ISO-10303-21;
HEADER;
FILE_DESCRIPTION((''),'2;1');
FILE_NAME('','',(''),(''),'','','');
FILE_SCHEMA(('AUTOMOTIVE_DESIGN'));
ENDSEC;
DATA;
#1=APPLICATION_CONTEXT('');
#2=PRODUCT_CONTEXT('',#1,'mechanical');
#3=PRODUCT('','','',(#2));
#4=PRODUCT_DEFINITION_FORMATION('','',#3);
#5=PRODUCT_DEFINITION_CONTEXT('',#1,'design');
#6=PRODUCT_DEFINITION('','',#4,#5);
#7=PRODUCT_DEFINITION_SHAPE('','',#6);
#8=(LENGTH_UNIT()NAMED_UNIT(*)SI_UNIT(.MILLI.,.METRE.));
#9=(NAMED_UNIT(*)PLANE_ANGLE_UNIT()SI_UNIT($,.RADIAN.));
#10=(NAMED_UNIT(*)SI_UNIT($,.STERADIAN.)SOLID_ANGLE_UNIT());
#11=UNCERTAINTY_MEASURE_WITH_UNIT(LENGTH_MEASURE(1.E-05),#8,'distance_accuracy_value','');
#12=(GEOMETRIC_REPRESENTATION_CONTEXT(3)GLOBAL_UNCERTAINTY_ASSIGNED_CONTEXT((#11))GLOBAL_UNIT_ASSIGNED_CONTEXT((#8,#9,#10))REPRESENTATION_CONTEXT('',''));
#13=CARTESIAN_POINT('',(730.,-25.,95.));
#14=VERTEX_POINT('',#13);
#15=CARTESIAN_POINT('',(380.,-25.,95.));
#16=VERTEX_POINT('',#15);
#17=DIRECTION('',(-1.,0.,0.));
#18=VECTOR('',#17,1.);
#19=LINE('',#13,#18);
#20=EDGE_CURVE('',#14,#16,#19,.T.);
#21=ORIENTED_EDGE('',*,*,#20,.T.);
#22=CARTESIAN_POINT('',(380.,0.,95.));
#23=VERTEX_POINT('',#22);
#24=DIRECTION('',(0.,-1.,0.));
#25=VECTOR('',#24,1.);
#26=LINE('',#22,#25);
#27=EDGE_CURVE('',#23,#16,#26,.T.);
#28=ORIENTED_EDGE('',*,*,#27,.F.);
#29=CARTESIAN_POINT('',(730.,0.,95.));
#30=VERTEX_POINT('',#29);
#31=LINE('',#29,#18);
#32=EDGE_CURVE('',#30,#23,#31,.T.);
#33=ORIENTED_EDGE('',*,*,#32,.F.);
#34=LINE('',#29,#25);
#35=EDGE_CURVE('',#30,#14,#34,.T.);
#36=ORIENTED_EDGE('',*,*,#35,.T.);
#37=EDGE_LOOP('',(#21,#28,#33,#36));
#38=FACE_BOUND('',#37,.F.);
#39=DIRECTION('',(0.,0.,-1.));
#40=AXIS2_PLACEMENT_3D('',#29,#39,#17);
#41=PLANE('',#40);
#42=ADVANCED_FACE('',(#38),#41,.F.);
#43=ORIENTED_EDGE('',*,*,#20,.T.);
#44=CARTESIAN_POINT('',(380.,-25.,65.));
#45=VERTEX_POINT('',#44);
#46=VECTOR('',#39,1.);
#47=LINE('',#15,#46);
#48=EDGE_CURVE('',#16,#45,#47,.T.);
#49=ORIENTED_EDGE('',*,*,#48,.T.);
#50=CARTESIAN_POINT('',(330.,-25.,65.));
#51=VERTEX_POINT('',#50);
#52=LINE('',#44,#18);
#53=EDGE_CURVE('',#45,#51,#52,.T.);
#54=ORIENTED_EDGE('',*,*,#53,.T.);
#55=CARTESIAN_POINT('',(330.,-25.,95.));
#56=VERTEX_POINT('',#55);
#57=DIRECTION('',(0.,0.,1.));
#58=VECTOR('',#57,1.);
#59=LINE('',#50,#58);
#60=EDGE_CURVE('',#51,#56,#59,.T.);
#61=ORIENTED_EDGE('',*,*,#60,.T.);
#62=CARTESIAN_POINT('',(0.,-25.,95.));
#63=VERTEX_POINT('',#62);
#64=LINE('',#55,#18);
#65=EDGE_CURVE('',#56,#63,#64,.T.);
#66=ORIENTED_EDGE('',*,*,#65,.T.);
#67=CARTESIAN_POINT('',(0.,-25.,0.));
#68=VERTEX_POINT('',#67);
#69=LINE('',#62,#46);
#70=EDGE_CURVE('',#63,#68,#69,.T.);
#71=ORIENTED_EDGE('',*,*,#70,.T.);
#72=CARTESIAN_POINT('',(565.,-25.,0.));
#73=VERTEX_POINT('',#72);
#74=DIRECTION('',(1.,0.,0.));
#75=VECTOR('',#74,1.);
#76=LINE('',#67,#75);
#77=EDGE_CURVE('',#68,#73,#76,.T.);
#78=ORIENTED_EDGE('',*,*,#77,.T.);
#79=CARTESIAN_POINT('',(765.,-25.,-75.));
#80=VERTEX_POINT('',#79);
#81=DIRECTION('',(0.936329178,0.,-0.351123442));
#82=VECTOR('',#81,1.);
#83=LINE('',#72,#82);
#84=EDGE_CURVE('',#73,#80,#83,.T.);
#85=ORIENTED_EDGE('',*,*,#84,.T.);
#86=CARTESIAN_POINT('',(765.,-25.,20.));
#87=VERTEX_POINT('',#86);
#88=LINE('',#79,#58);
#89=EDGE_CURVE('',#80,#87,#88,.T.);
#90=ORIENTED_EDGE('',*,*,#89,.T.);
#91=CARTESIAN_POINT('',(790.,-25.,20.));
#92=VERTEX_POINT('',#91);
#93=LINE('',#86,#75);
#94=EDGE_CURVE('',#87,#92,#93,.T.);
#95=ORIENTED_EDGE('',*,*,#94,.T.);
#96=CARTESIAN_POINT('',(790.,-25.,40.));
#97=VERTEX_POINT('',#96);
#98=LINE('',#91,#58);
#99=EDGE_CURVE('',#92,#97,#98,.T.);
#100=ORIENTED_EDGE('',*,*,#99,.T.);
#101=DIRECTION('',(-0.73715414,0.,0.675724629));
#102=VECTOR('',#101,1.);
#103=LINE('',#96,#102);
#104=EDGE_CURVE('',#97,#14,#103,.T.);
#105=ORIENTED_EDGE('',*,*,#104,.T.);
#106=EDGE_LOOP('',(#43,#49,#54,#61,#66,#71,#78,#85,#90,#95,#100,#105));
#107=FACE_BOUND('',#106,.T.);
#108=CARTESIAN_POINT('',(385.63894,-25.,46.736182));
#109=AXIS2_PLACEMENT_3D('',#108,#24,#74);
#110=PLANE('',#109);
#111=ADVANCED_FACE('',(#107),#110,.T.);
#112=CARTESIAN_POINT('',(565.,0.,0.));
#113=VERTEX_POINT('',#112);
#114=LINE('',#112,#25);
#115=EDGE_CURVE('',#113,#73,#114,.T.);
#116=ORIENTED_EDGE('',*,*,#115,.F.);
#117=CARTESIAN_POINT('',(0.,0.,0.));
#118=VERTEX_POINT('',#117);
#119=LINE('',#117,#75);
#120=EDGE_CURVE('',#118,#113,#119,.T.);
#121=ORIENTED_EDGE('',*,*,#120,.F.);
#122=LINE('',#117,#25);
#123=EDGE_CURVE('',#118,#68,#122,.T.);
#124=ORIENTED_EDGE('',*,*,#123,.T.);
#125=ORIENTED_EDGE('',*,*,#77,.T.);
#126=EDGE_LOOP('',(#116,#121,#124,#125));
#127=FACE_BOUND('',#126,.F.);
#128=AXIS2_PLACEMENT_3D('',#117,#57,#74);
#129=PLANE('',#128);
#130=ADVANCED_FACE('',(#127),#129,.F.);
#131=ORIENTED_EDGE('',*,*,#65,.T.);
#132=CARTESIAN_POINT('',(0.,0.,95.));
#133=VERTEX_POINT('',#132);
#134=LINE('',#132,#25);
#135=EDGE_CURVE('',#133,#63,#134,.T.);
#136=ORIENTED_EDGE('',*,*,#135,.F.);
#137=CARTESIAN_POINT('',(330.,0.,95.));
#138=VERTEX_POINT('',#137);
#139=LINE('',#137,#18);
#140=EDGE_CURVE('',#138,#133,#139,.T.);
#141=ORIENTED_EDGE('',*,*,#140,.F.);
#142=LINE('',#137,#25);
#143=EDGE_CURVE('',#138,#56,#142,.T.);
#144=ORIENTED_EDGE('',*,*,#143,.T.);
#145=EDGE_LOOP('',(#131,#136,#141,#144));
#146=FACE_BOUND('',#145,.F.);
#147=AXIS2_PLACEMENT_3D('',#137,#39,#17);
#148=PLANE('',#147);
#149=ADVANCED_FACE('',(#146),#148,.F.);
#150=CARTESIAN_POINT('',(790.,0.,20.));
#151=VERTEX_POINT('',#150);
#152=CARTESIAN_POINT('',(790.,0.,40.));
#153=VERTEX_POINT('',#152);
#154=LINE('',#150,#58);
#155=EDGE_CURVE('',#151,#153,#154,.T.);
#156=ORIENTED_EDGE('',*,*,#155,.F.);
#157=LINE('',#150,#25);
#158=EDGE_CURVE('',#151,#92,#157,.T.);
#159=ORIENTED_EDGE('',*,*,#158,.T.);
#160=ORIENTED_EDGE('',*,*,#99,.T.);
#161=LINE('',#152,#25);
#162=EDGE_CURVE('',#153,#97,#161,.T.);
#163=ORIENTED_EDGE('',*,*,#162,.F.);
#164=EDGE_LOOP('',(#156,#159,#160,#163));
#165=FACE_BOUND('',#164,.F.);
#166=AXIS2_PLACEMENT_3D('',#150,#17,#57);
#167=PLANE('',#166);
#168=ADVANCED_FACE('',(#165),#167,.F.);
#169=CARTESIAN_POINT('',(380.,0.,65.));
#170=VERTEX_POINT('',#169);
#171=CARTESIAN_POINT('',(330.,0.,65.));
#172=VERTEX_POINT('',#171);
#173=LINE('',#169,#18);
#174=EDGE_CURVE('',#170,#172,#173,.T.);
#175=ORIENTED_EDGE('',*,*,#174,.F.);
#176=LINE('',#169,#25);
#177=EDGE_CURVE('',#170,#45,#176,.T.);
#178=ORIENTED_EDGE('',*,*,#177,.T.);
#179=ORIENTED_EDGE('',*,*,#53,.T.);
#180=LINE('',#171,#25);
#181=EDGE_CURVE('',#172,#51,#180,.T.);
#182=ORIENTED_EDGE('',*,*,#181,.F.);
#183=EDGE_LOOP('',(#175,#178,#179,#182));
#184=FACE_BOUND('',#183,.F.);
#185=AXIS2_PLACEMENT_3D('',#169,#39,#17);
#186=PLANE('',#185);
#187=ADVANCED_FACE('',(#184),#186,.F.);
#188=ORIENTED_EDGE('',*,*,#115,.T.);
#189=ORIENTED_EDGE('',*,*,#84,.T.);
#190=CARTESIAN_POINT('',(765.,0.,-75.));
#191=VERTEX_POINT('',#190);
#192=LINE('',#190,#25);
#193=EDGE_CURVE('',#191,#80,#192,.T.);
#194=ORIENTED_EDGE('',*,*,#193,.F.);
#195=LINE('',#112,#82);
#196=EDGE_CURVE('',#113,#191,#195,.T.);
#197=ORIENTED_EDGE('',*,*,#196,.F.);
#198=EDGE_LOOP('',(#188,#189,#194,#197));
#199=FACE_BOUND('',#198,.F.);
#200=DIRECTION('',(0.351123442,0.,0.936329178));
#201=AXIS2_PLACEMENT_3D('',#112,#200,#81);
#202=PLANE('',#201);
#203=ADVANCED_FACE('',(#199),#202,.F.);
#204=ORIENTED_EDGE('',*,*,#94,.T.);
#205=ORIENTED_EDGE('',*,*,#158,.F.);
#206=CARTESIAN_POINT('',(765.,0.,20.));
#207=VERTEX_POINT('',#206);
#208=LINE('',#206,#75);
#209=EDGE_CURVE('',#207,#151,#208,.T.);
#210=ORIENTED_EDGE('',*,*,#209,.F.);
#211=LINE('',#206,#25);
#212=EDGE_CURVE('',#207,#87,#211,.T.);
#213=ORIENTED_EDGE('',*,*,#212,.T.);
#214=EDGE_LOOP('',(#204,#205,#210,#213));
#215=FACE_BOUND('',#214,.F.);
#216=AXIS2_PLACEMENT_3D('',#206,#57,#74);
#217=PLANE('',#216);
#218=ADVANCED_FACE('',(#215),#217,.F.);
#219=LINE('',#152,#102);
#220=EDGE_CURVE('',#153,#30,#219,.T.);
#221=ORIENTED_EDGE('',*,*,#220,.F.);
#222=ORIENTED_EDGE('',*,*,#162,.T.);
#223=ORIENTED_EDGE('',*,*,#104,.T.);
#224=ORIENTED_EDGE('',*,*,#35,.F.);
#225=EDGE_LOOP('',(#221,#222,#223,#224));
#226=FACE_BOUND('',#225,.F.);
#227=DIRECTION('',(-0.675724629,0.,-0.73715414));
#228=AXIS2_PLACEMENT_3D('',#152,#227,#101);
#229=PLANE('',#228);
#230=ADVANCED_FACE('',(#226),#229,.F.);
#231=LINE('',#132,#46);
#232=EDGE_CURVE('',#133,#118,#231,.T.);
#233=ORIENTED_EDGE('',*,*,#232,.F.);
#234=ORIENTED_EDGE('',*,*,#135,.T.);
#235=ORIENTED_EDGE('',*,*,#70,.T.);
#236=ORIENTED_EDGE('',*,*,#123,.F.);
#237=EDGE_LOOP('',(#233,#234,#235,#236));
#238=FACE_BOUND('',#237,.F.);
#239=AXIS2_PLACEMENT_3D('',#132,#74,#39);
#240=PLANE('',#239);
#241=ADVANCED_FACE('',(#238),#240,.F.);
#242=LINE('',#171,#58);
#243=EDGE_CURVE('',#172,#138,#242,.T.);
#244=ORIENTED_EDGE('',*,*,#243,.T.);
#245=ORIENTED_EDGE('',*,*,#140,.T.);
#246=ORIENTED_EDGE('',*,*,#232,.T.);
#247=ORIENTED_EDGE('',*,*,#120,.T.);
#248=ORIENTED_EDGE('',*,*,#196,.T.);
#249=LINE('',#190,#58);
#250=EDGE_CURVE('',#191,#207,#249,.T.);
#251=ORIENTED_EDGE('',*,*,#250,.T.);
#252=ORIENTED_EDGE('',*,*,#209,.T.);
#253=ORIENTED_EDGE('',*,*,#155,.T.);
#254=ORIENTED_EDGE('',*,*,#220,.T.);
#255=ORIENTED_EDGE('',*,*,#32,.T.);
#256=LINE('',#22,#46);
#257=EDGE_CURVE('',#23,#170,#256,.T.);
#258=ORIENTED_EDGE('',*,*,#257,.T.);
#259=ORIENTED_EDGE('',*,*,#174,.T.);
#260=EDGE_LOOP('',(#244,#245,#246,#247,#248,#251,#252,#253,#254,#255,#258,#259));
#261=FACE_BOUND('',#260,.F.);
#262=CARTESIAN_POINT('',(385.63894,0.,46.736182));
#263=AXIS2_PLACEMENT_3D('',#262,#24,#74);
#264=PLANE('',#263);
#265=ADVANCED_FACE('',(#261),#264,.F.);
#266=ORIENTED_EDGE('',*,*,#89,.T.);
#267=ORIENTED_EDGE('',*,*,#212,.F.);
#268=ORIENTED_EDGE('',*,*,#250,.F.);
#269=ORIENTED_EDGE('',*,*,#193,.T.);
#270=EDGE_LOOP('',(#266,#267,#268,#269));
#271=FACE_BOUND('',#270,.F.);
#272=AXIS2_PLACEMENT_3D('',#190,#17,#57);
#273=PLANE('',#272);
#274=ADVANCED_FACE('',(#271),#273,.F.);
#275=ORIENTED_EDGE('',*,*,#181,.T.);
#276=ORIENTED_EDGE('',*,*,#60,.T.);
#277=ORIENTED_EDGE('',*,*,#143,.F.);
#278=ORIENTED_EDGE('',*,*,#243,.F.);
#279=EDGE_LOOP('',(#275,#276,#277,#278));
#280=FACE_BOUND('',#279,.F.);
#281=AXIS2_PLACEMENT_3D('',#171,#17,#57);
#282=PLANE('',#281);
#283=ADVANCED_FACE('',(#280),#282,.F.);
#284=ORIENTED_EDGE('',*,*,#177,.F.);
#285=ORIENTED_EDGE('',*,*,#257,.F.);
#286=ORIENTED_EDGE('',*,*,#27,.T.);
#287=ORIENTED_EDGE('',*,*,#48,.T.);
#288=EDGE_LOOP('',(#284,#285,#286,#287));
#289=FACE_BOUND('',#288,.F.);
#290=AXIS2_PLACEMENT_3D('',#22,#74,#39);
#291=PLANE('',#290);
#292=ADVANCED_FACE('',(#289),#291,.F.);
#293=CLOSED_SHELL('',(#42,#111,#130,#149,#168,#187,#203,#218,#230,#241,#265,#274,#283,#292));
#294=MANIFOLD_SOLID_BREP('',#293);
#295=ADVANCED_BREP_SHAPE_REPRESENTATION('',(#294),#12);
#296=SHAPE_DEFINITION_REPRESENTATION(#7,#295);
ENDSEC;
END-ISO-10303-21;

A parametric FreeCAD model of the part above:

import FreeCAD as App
import Part
import Sketcher
Q = App.Units.Quantity


def add_polygon(sketch, points):
    """Adds a closed chain of lines whose ends are joined by coincident constraints."""
    first, n = sketch.GeometryCount, len(points)
    for a, b in zip(points, points[1:] + points[:1]):
        sketch.addGeometry(Part.LineSegment(App.Vector(*a, 0), App.Vector(*b, 0)), False)
    for i in range(n):
        sketch.addConstraint(Sketcher.Constraint("Coincident", first + i, 2, first + (i + 1) % n, 1))

doc = App.newDocument("Part")
params = doc.addObject("Spreadsheet::Sheet", "Params")
for row, (alias, value) in enumerate([
    ("sketch1_width", "565 mm"),
    ("sketch1_width2", "25 mm"),
    ("sketch1_width3", "350 mm"),
    ("sketch1_width4", "50 mm"),
    ("sketch1_width5", "330 mm"),
    ("pad1_length", "25 mm"),
], start=1):
    params.set(f"A{row}", alias)
    params.set(f"B{row}", "=" + value)
    params.setAlias(f"B{row}", alias)

body = doc.addObject("PartDesign::Body", "Body")

sketch1 = body.newObject("Sketcher::SketchObject", "Sketch")
sketch1.AttachmentSupport = (doc.getObject("XZ_Plane"), [""])
sketch1.MapMode = "FlatFace"
add_polygon(sketch1, [(0, 95), (0, 0), (565, 0), (765, -75), (765, 20), (790, 20), (790, 40), (730, 95), (380, 95), (380, 65), (330, 65), (330, 95)])
sketch1.addConstraint([
    Sketcher.Constraint("Vertical", 0),
    Sketcher.Constraint("Horizontal", 1),
    Sketcher.Constraint("Vertical", 3),
    Sketcher.Constraint("Horizontal", 4),
    Sketcher.Constraint("Vertical", 5),
    Sketcher.Constraint("Horizontal", 7),
    Sketcher.Constraint("Vertical", 8),
    Sketcher.Constraint("Horizontal", 9),
    Sketcher.Constraint("Vertical", 10),
    Sketcher.Constraint("Horizontal", 11),
    Sketcher.Constraint("Coincident", 0, 2, -1, 1),
    Sketcher.Constraint("Horizontal", 7, 2, 10, 2),
    Sketcher.Constraint("Equal", 0, 3),
    Sketcher.Constraint("DistanceX", 1, 1, 1, 2, Q("565 mm")),
    Sketcher.Constraint("DistanceX", 4, 1, 4, 2, Q("25 mm")),
    Sketcher.Constraint("DistanceX", 7, 2, 7, 1, Q("350 mm")),
    Sketcher.Constraint("DistanceX", 9, 2, 9, 1, Q("50 mm")),
    Sketcher.Constraint("DistanceX", 11, 2, 11, 1, Q("330 mm")),
    Sketcher.Constraint("DistanceY", 0, 2, 0, 1, Q("95 mm")),
    Sketcher.Constraint("DistanceY", 5, 1, 5, 2, Q("20 mm")),
    Sketcher.Constraint("DistanceY", 8, 2, 8, 1, Q("30 mm")),
    Sketcher.Constraint("DistanceX", -1, 1, 2, 2, Q("765 mm")),
    Sketcher.Constraint("DistanceY", 2, 2, -1, 1, Q("75 mm")),
])
sketch1.setExpression("Constraints[25]", "Params.sketch1_width")
sketch1.setExpression("Constraints[26]", "Params.sketch1_width2")
sketch1.setExpression("Constraints[27]", "Params.sketch1_width3")
sketch1.setExpression("Constraints[28]", "Params.sketch1_width4")
sketch1.setExpression("Constraints[29]", "Params.sketch1_width5")
pad1 = body.newObject("PartDesign::Pad", "Pad")
pad1.Profile = sketch1
pad1.setExpression("Length", "Params.pad1_length")

doc.recompute()
